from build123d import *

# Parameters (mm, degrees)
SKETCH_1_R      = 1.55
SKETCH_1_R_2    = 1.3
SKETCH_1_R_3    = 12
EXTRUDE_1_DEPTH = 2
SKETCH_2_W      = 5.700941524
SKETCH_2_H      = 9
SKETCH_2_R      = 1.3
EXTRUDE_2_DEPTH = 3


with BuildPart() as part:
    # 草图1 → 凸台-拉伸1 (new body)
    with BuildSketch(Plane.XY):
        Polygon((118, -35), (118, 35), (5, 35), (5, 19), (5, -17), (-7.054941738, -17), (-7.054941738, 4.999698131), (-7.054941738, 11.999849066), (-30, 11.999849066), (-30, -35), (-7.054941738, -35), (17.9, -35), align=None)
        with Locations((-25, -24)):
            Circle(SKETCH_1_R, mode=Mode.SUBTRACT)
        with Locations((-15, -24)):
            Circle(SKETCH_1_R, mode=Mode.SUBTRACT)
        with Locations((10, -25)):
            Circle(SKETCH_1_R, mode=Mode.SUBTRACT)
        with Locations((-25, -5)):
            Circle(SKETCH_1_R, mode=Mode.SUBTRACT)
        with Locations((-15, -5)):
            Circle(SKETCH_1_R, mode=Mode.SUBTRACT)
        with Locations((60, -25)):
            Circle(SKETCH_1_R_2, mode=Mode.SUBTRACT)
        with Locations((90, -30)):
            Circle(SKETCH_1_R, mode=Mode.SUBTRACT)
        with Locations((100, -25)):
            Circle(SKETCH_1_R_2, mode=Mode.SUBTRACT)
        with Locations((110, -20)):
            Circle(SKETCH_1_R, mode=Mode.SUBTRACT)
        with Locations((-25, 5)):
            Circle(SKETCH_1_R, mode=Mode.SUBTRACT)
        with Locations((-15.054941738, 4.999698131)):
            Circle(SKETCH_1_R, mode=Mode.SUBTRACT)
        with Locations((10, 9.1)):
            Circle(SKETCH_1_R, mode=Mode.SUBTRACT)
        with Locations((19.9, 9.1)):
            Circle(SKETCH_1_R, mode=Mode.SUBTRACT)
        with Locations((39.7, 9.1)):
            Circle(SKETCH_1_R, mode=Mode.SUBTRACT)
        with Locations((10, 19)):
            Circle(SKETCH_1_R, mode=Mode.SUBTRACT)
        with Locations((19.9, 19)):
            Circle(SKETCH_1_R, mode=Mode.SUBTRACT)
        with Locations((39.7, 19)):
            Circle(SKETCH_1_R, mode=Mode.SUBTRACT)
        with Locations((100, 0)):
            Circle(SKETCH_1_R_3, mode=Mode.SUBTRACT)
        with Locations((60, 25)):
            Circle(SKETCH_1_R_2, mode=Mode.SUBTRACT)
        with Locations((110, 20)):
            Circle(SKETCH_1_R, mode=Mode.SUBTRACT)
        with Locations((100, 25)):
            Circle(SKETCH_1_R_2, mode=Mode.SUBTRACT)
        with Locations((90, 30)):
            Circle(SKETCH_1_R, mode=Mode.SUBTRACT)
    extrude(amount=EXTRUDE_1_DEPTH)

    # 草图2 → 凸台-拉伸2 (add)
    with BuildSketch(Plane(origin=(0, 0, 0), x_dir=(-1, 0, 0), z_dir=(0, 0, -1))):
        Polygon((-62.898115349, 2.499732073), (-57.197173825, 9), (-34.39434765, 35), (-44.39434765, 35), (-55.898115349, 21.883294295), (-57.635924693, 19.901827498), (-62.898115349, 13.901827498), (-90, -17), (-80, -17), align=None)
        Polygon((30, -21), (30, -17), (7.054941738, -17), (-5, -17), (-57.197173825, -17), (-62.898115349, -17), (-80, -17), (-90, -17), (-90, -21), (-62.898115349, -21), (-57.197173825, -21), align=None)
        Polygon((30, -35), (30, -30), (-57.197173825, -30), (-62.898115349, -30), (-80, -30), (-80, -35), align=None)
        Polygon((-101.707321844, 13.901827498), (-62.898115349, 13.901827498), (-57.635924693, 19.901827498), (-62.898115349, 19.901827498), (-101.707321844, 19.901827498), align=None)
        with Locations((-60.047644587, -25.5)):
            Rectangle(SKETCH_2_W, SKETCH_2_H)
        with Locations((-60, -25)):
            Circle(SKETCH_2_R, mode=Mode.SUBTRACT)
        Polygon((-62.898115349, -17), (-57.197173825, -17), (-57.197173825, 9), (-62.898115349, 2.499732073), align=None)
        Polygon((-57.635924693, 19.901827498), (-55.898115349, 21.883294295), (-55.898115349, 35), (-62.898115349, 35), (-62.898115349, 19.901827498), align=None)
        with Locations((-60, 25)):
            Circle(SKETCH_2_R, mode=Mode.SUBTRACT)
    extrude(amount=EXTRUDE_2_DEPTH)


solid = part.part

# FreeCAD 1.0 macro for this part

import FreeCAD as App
import Part
import Sketcher

V = App.Vector

doc = App.newDocument("Part")
body = doc.addObject("PartDesign::Body", "Body")

# Sketch on XY plane
sketch1 = body.newObject("Sketcher::SketchObject", "Sketch")
sketch1.AttachmentSupport = (doc.getObject("XY_Plane"), [""])
sketch1.MapMode = "FlatFace"
sketch1.addGeometry([
    Part.LineSegment(V(118, -35, 0), V(118, 35, 0)),  # 0
    Part.LineSegment(V(118, 35, 0), V(5, 35, 0)),  # 1
    Part.LineSegment(V(5, 35, 0), V(5, -17, 0)),  # 2
    Part.LineSegment(V(5, -17, 0), V(-7.054942, -17, 0)),  # 3
    Part.LineSegment(V(-7.054942, -17, 0), V(-7.054942, 11.999849, 0)),  # 4
    Part.LineSegment(V(-7.054942, 11.999849, 0), V(-30, 11.999849, 0)),  # 5
    Part.LineSegment(V(-30, 11.999849, 0), V(-30, -35, 0)),  # 6
    Part.LineSegment(V(-30, -35, 0), V(118, -35, 0)),  # 7
    Part.Circle(V(-25, -24, 0), V(0, 0, 1), 1.55),  # 8
    Part.Circle(V(-15, -24, 0), V(0, 0, 1), 1.55),  # 9
    Part.Circle(V(10, -25, 0), V(0, 0, 1), 1.55),  # 10
    Part.Circle(V(-25, -5, 0), V(0, 0, 1), 1.55),  # 11
    Part.Circle(V(-15, -5, 0), V(0, 0, 1), 1.55),  # 12
    Part.Circle(V(60, -25, 0), V(0, 0, 1), 1.3),  # 13
    Part.Circle(V(90, -30, 0), V(0, 0, 1), 1.55),  # 14
    Part.Circle(V(100, -25, 0), V(0, 0, 1), 1.3),  # 15
    Part.Circle(V(110, -20, 0), V(0, 0, 1), 1.55),  # 16
    Part.Circle(V(-25, 5, 0), V(0, 0, 1), 1.55),  # 17
    Part.Circle(V(-15.054942, 4.999698, 0), V(0, 0, 1), 1.55),  # 18
    Part.Circle(V(10, 9.1, 0), V(0, 0, 1), 1.55),  # 19
    Part.Circle(V(19.9, 9.1, 0), V(0, 0, 1), 1.55),  # 20
    Part.Circle(V(39.7, 9.1, 0), V(0, 0, 1), 1.55),  # 21
    Part.Circle(V(10, 19, 0), V(0, 0, 1), 1.55),  # 22
    Part.Circle(V(19.9, 19, 0), V(0, 0, 1), 1.55),  # 23
    Part.Circle(V(39.7, 19, 0), V(0, 0, 1), 1.55),  # 24
    Part.Circle(V(100, 0, 0), V(0, 0, 1), 12),  # 25
    Part.Circle(V(60, 25, 0), V(0, 0, 1), 1.3),  # 26
    Part.Circle(V(110, 20, 0), V(0, 0, 1), 1.55),  # 27
    Part.Circle(V(90, 30, 0), V(0, 0, 1), 1.55),  # 28
    Part.Circle(V(100, 25, 0), V(0, 0, 1), 1.3),  # 29
], False)
sketch1.addConstraint([
    Sketcher.Constraint("Coincident", 0, 2, 1, 1),
    Sketcher.Constraint("Coincident", 1, 2, 2, 1),
    Sketcher.Constraint("Coincident", 2, 2, 3, 1),
    Sketcher.Constraint("Coincident", 3, 2, 4, 1),
    Sketcher.Constraint("Coincident", 4, 2, 5, 1),
    Sketcher.Constraint("Coincident", 5, 2, 6, 1),
    Sketcher.Constraint("Coincident", 6, 2, 7, 1),
    Sketcher.Constraint("Coincident", 7, 2, 0, 1),
    Sketcher.Constraint("Vertical", 0),
    Sketcher.Constraint("Horizontal", 1),
    Sketcher.Constraint("Vertical", 2),
    Sketcher.Constraint("Horizontal", 3),
    Sketcher.Constraint("Vertical", 4),
    Sketcher.Constraint("Horizontal", 5),
    Sketcher.Constraint("Vertical", 6),
    Sketcher.Constraint("Horizontal", 7),
    Sketcher.Constraint("Equal", 8, 9),
    Sketcher.Constraint("Equal", 9, 10),
    Sketcher.Constraint("Equal", 10, 11),
    Sketcher.Constraint("Equal", 11, 12),
    Sketcher.Constraint("Equal", 12, 14),
    Sketcher.Constraint("Equal", 13, 15),
    Sketcher.Constraint("Equal", 14, 16),
    Sketcher.Constraint("Equal", 16, 17),
    Sketcher.Constraint("Equal", 17, 18),
    Sketcher.Constraint("Equal", 18, 19),
    Sketcher.Constraint("Equal", 19, 20),
    Sketcher.Constraint("Equal", 20, 21),
    Sketcher.Constraint("Equal", 21, 22),
    Sketcher.Constraint("Equal", 22, 23),
    Sketcher.Constraint("Equal", 23, 24),
    Sketcher.Constraint("Equal", 15, 26),
    Sketcher.Constraint("Equal", 24, 27),
    Sketcher.Constraint("Equal", 27, 28),
    Sketcher.Constraint("Equal", 26, 29),
    Sketcher.Constraint("Symmetric", 11, 3, 17, 3, -1),
    Sketcher.Constraint("Symmetric", 13, 3, 26, 3, -1),
    Sketcher.Constraint("Symmetric", 16, 3, 27, 3, -1),
    Sketcher.Constraint("Symmetric", 14, 3, 28, 3, -1),
    Sketcher.Constraint("Symmetric", 15, 3, 29, 3, -1),
    Sketcher.Constraint("PointOnObject", 25, 3, -1),
    Sketcher.Constraint("Horizontal", 8, 3, 9, 3),
    Sketcher.Constraint("Horizontal", 11, 3, 12, 3),
    Sketcher.Constraint("Horizontal", 10, 3, 13, 3),
    Sketcher.Constraint("Horizontal", 13, 3, 15, 3),
    Sketcher.Constraint("Horizontal", 19, 3, 20, 3),
    Sketcher.Constraint("Horizontal", 20, 3, 21, 3),
    Sketcher.Constraint("Horizontal", 22, 3, 23, 3),
    Sketcher.Constraint("Horizontal", 23, 3, 24, 3),
    Sketcher.Constraint("Vertical", 8, 3, 11, 3),
    Sketcher.Constraint("Vertical", 9, 3, 12, 3),
    Sketcher.Constraint("Vertical", 10, 3, 19, 3),
    Sketcher.Constraint("Vertical", 19, 3, 22, 3),
    Sketcher.Constraint("Vertical", 20, 3, 23, 3),
    Sketcher.Constraint("Vertical", 21, 3, 24, 3),
    Sketcher.Constraint("Vertical", 15, 3, 25, 3),
    Sketcher.Constraint("Diameter", 25, 24.0),
    Sketcher.Constraint("Diameter", 8, 3.1),
    Sketcher.Constraint("Diameter", 13, 2.6),
    Sketcher.Constraint("DistanceX", 1, 2, 1, 1, 113.0),
    Sketcher.Constraint("DistanceX", 7, 1, 7, 2, 148.0),
    Sketcher.Constraint("DistanceY", 0, 1, 0, 2, 70.0),
    Sketcher.Constraint("DistanceY", 2, 2, 2, 1, 52.0),
    Sketcher.Constraint("DistanceX", 8, 3, -1, 1, 25.0),
    Sketcher.Constraint("DistanceY", 8, 3, -1, 1, 24.0),
    Sketcher.Constraint("DistanceX", 9, 3, -1, 1, 15.0),
    Sketcher.Constraint("DistanceX", -1, 1, 10, 3, 10.0),
    Sketcher.Constraint("DistanceY", 10, 3, -1, 1, 25.0),
    Sketcher.Constraint("DistanceY", 11, 3, -1, 1, 5.0),
    Sketcher.Constraint("DistanceX", -1, 1, 13, 3, 60.0),
    Sketcher.Constraint("DistanceX", -1, 1, 14, 3, 90.0),
    Sketcher.Constraint("DistanceY", 14, 3, -1, 1, 30.0),
    Sketcher.Constraint("DistanceX", -1, 1, 15, 3, 100.0),
    Sketcher.Constraint("DistanceX", -1, 1, 16, 3, 110.0),
    Sketcher.Constraint("DistanceY", 16, 3, -1, 1, 20.0),
    Sketcher.Constraint("DistanceY", -1, 1, 22, 3, 19.0),
    Sketcher.Constraint("DistanceX", -1, 1, 0, 2, 118.0),
    Sketcher.Constraint("DistanceY", -1, 1, 0, 2, 35.0),
    Sketcher.Constraint("DistanceX", 18, 3, 4, 2, 8.0),
    Sketcher.Constraint("DistanceY", -1, 1, 19, 3, 9.1),
    Sketcher.Constraint("DistanceX", -1, 1, 20, 3, 19.9),
    Sketcher.Constraint("DistanceX", -1, 1, 21, 3, 39.7),
    Sketcher.Constraint("DistanceX", 3, 2, 3, 1, 12.054942),
    Sketcher.Constraint("DistanceY", 4, 1, 4, 2, 28.999849),
    Sketcher.Constraint("DistanceY", -1, 1, 18, 3, 4.999698),
])
pad1 = body.newObject("PartDesign::Pad", "Pad")
pad1.Profile = sketch1
pad1.Length = 2

# Sketch on XY plane
sketch2 = body.newObject("Sketcher::SketchObject", "Sketch001")
sketch2.AttachmentSupport = (doc.getObject("XY_Plane"), [""])
sketch2.MapMode = "FlatFace"
sketch2.addGeometry([
    Part.LineSegment(V(57.197174, 9, 0), V(34.394348, 35, 0)),  # 0
    Part.LineSegment(V(34.394348, 35, 0), V(44.394348, 35, 0)),  # 1
    Part.LineSegment(V(44.394348, 35, 0), V(55.898115, 21.883294, 0)),  # 2
    Part.LineSegment(V(55.898115, 21.883294, 0), V(55.898115, 35, 0)),  # 3
    Part.LineSegment(V(55.898115, 35, 0), V(62.898115, 35, 0)),  # 4
    Part.LineSegment(V(62.898115, 35, 0), V(62.898115, 19.901827, 0)),  # 5
    Part.LineSegment(V(62.898115, 19.901827, 0), V(101.707322, 19.901827, 0)),  # 6
    Part.LineSegment(V(101.707322, 19.901827, 0), V(101.707322, 13.901827, 0)),  # 7
    Part.LineSegment(V(101.707322, 13.901827, 0), V(62.898115, 13.901827, 0)),  # 8
    Part.LineSegment(V(62.898115, 13.901827, 0), V(90, -17, 0)),  # 9
    Part.LineSegment(V(90, -17, 0), V(90, -21, 0)),  # 10
    Part.LineSegment(V(90, -21, 0), V(62.898115, -21, 0)),  # 11
    Part.LineSegment(V(62.898115, -21, 0), V(62.898115, -30, 0)),  # 12
    Part.LineSegment(V(62.898115, -30, 0), V(80, -30, 0)),  # 13
    Part.LineSegment(V(80, -30, 0), V(80, -35, 0)),  # 14
    Part.LineSegment(V(80, -35, 0), V(-30, -35, 0)),  # 15
    Part.LineSegment(V(-30, -35, 0), V(-30, -30, 0)),  # 16
    Part.LineSegment(V(-30, -30, 0), V(57.197174, -30, 0)),  # 17
    Part.LineSegment(V(57.197174, -30, 0), V(57.197174, -21, 0)),  # 18
    Part.LineSegment(V(57.197174, -21, 0), V(-30, -21, 0)),  # 19
    Part.LineSegment(V(-30, -21, 0), V(-30, -17, 0)),  # 20
    Part.LineSegment(V(-30, -17, 0), V(57.197174, -17, 0)),  # 21
    Part.LineSegment(V(57.197174, -17, 0), V(57.197174, 9, 0)),  # 22
    Part.LineSegment(V(80, -17, 0), V(62.898115, 2.499732, 0)),  # 23
    Part.LineSegment(V(62.898115, 2.499732, 0), V(62.898115, -17, 0)),  # 24
    Part.LineSegment(V(62.898115, -17, 0), V(80, -17, 0)),  # 25
    Part.Circle(V(60, -25, 0), V(0, 0, 1), 1.3),  # 26
    Part.Circle(V(60, 25, 0), V(0, 0, 1), 1.3),  # 27
], False)
sketch2.addConstraint([
    Sketcher.Constraint("Coincident", 0, 2, 1, 1),
    Sketcher.Constraint("Coincident", 1, 2, 2, 1),
    Sketcher.Constraint("Coincident", 2, 2, 3, 1),
    Sketcher.Constraint("Coincident", 3, 2, 4, 1),
    Sketcher.Constraint("Coincident", 4, 2, 5, 1),
    Sketcher.Constraint("Coincident", 5, 2, 6, 1),
    Sketcher.Constraint("Coincident", 6, 2, 7, 1),
    Sketcher.Constraint("Coincident", 7, 2, 8, 1),
    Sketcher.Constraint("Coincident", 8, 2, 9, 1),
    Sketcher.Constraint("Coincident", 9, 2, 10, 1),
    Sketcher.Constraint("Coincident", 10, 2, 11, 1),
    Sketcher.Constraint("Coincident", 11, 2, 12, 1),
    Sketcher.Constraint("Coincident", 12, 2, 13, 1),
    Sketcher.Constraint("Coincident", 13, 2, 14, 1),
    Sketcher.Constraint("Coincident", 14, 2, 15, 1),
    Sketcher.Constraint("Coincident", 15, 2, 16, 1),
    Sketcher.Constraint("Coincident", 16, 2, 17, 1),
    Sketcher.Constraint("Coincident", 17, 2, 18, 1),
    Sketcher.Constraint("Coincident", 18, 2, 19, 1),
    Sketcher.Constraint("Coincident", 19, 2, 20, 1),
    Sketcher.Constraint("Coincident", 20, 2, 21, 1),
    Sketcher.Constraint("Coincident", 21, 2, 22, 1),
    Sketcher.Constraint("Coincident", 22, 2, 0, 1),
    Sketcher.Constraint("Coincident", 23, 2, 24, 1),
    Sketcher.Constraint("Coincident", 24, 2, 25, 1),
    Sketcher.Constraint("Coincident", 25, 2, 23, 1),
    Sketcher.Constraint("Horizontal", 1),
    Sketcher.Constraint("Vertical", 3),
    Sketcher.Constraint("Horizontal", 4),
    Sketcher.Constraint("Vertical", 5),
    Sketcher.Constraint("Horizontal", 6),
    Sketcher.Constraint("Vertical", 7),
    Sketcher.Constraint("Horizontal", 8),
    Sketcher.Constraint("Vertical", 10),
    Sketcher.Constraint("Horizontal", 11),
    Sketcher.Constraint("Vertical", 12),
    Sketcher.Constraint("Horizontal", 13),
    Sketcher.Constraint("Vertical", 14),
    Sketcher.Constraint("Horizontal", 15),
    Sketcher.Constraint("Vertical", 16),
    Sketcher.Constraint("Horizontal", 17),
    Sketcher.Constraint("Vertical", 18),
    Sketcher.Constraint("Horizontal", 19),
    Sketcher.Constraint("Vertical", 20),
    Sketcher.Constraint("Horizontal", 21),
    Sketcher.Constraint("Vertical", 22),
    Sketcher.Constraint("Vertical", 24),
    Sketcher.Constraint("Horizontal", 25),
    Sketcher.Constraint("Equal", 26, 27),
    Sketcher.Constraint("Symmetric", 26, 3, 27, 3, -1),
    Sketcher.Constraint("Parallel", 0, 2),
    Sketcher.Constraint("Parallel", 2, 9),
    Sketcher.Constraint("Parallel", 9, 23),
    Sketcher.Constraint("Horizontal", 1, 2, 3, 2),
    Sketcher.Constraint("Horizontal", 13, 2, 16, 2),
    Sketcher.Constraint("Horizontal", 11, 2, 18, 2),
    Sketcher.Constraint("Horizontal", 9, 2, 20, 2),
    Sketcher.Constraint("Horizontal", 21, 2, 24, 2),
    Sketcher.Constraint("Vertical", 5, 2, 8, 2),
    Sketcher.Constraint("Vertical", 8, 2, 11, 2),
    Sketcher.Constraint("Vertical", 16, 2, 19, 2),
    Sketcher.Constraint("Vertical", 18, 2, 21, 2),
    Sketcher.Constraint("Vertical", 12, 2, 23, 2),
    Sketcher.Constraint("Vertical", 14, 2, 25, 2),
    Sketcher.Constraint("Diameter", 26, 2.6),
    Sketcher.Constraint("DistanceX", 1, 1, 1, 2, 10.0),
    Sketcher.Constraint("DistanceX", 4, 1, 4, 2, 7.0),
    Sketcher.Constraint("DistanceX", 15, 2, 15, 1, 110.0),
    Sketcher.Constraint("DistanceY", 7, 2, 7, 1, 6.0),
    Sketcher.Constraint("DistanceY", 10, 2, 10, 1, 4.0),
    Sketcher.Constraint("DistanceY", 12, 2, 12, 1, 9.0),
    Sketcher.Constraint("DistanceY", 14, 2, 14, 1, 5.0),
    Sketcher.Constraint("DistanceY", 22, 1, 22, 2, 26.0),
    Sketcher.Constraint("DistanceX", -1, 1, 26, 3, 60.0),
    Sketcher.Constraint("DistanceY", 26, 3, -1, 1, 25.0),
    Sketcher.Constraint("DistanceY", -1, 1, 0, 2, 35.0),
    Sketcher.Constraint("DistanceX", -1, 1, 9, 2, 90.0),
    Sketcher.Constraint("DistanceY", 9, 2, -1, 1, 17.0),
    Sketcher.Constraint("DistanceX", -1, 1, 13, 2, 80.0),
    Sketcher.Constraint("Distance", 9, 41.102738),
    Sketcher.Constraint("Distance", 23, 25.936731),
    Sketcher.Constraint("DistanceX", 6, 1, 6, 2, 38.809206),
    Sketcher.Constraint("DistanceX", 17, 1, 17, 2, 87.197174),
])
pad2 = body.newObject("PartDesign::Pad", "Pad001")
pad2.Profile = sketch2
pad2.Length = 3
pad2.Reversed = True

doc.recompute()
